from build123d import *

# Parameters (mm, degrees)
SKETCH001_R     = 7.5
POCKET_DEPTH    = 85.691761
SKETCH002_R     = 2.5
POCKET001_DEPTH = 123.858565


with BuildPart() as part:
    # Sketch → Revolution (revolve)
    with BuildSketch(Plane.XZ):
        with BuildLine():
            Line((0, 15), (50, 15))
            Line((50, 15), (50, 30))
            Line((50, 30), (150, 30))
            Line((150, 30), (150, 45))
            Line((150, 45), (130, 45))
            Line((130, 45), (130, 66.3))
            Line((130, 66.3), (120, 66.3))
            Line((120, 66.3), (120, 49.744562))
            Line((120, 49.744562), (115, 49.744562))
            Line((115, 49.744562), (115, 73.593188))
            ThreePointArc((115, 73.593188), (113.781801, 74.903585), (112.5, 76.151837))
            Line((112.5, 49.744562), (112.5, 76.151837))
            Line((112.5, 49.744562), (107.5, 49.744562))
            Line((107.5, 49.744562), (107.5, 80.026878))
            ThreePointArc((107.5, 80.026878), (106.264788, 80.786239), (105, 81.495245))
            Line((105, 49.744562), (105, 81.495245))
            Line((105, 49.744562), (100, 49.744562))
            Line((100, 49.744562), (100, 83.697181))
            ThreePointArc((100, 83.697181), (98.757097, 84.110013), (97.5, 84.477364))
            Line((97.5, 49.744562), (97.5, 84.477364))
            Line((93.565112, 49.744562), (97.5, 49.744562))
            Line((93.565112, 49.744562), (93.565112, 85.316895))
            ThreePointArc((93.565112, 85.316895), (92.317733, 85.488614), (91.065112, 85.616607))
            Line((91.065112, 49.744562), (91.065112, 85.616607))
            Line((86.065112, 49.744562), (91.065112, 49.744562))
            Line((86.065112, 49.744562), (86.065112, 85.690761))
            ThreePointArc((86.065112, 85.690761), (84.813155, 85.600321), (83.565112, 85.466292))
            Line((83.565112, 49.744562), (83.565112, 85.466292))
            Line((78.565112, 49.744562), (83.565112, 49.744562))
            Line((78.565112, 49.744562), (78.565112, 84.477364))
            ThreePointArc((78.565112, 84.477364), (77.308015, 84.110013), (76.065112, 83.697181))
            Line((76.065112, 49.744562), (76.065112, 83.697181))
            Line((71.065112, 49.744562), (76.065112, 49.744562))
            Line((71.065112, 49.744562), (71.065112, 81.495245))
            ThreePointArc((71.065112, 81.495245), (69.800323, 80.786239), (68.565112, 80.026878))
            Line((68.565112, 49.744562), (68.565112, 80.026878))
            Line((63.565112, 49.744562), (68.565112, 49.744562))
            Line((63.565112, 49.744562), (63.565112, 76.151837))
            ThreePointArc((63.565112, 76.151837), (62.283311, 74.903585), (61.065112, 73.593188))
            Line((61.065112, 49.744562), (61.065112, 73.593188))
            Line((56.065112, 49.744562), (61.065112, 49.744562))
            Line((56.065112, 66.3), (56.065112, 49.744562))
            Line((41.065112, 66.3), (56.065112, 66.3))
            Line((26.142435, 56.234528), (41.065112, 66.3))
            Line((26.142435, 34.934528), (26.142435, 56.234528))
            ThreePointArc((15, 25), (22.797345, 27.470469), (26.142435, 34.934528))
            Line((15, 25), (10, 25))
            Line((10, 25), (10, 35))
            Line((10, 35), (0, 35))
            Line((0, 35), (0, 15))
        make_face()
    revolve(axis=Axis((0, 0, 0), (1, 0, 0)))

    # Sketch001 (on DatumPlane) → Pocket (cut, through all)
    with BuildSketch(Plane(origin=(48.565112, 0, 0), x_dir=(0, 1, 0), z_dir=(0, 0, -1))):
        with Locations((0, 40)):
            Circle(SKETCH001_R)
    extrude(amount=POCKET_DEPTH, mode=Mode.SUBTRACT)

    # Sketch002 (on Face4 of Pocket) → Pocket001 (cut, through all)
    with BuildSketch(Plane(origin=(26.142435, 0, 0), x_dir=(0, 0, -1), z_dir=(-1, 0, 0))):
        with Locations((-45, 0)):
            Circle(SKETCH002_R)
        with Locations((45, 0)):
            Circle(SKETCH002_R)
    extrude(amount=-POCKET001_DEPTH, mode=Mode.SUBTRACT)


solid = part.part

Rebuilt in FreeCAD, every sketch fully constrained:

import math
import FreeCAD as App
import Part
import Sketcher
Q = App.Units.Quantity

doc = App.newDocument("Part")
body = doc.addObject("PartDesign::Body", "Body")

sketch1 = body.newObject("Sketcher::SketchObject", "Sketch")
sketch1.AttachmentSupport = (doc.getObject("XZ_Plane"), [""])
sketch1.MapMode = "FlatFace"
sketch1.addGeometry(Part.LineSegment(App.Vector(0, 15, 0), App.Vector(50, 15, 0)), False)
sketch1.addGeometry(Part.LineSegment(App.Vector(50, 15, 0), App.Vector(50, 30, 0)), False)
sketch1.addGeometry(Part.LineSegment(App.Vector(50, 30, 0), App.Vector(150, 30, 0)), False)
sketch1.addGeometry(Part.LineSegment(App.Vector(150, 30, 0), App.Vector(150, 45, 0)), False)
sketch1.addGeometry(Part.LineSegment(App.Vector(150, 45, 0), App.Vector(130, 45, 0)), False)
sketch1.addGeometry(Part.LineSegment(App.Vector(130, 45, 0), App.Vector(130, 66.3, 0)), False)
sketch1.addGeometry(Part.LineSegment(App.Vector(130, 66.3, 0), App.Vector(120, 66.3, 0)), False)
sketch1.addGeometry(Part.LineSegment(App.Vector(120, 66.3, 0), App.Vector(120, 49.7, 0)), False)
sketch1.addGeometry(Part.LineSegment(App.Vector(120, 49.7, 0), App.Vector(115, 49.7, 0)), False)
sketch1.addGeometry(Part.LineSegment(App.Vector(115, 49.7, 0), App.Vector(115, 73.6, 0)), False)
sketch1.addGeometry(Part.ArcOfCircle(Part.Circle(App.Vector(88, 49.7, 0), App.Vector(0, 0, 1), 36), math.radians(41.49), math.radians(47.18)), False)
sketch1.addGeometry(Part.LineSegment(App.Vector(112.5, 76.2, 0), App.Vector(112.5, 49.7, 0)), False)
sketch1.addGeometry(Part.LineSegment(App.Vector(112.5, 49.7, 0), App.Vector(107.5, 49.7, 0)), False)
sketch1.addGeometry(Part.LineSegment(App.Vector(107.5, 49.7, 0), App.Vector(107.5, 80, 0)), False)
sketch1.addGeometry(Part.ArcOfCircle(Part.Circle(App.Vector(88, 49.7, 0), App.Vector(0, 0, 1), 36), math.radians(57.26), math.radians(61.88)), False)
sketch1.addGeometry(Part.LineSegment(App.Vector(105, 81.5, 0), App.Vector(105, 49.7, 0)), False)
sketch1.addGeometry(Part.LineSegment(App.Vector(105, 49.7, 0), App.Vector(100, 49.7, 0)), False)
sketch1.addGeometry(Part.LineSegment(App.Vector(100, 49.7, 0), App.Vector(100, 83.7, 0)), False)
sketch1.addGeometry(Part.ArcOfCircle(Part.Circle(App.Vector(88, 49.7, 0), App.Vector(0, 0, 1), 36), math.radians(70.58), math.radians(74.75)), False)
sketch1.addGeometry(Part.LineSegment(App.Vector(97.5, 84.5, 0), App.Vector(97.5, 49.7, 0)), False)
sketch1.addGeometry(Part.LineSegment(App.Vector(97.5, 49.7, 0), App.Vector(93.6, 49.7, 0)), False)
sketch1.addGeometry(Part.LineSegment(App.Vector(93.6, 49.7, 0), App.Vector(93.6, 85.3, 0)), False)
sketch1.addGeometry(Part.ArcOfCircle(Part.Circle(App.Vector(88, 49.7, 0), App.Vector(0, 0, 1), 36), math.radians(81.16), math.radians(85.17)), False)
sketch1.addGeometry(Part.LineSegment(App.Vector(91.1, 85.6, 0), App.Vector(91.1, 49.7, 0)), False)
sketch1.addGeometry(Part.LineSegment(App.Vector(91.1, 49.7, 0), App.Vector(86.1, 49.7, 0)), False)
sketch1.addGeometry(Part.LineSegment(App.Vector(86.1, 49.7, 0), App.Vector(86.1, 85.7, 0)), False)
sketch1.addGeometry(Part.ArcOfCircle(Part.Circle(App.Vector(88, 49.7, 0), App.Vector(0, 0, 1), 36), math.radians(93.13), math.radians(97.13)), False)
sketch1.addGeometry(Part.LineSegment(App.Vector(83.6, 85.5, 0), App.Vector(83.6, 49.7, 0)), False)
sketch1.addGeometry(Part.LineSegment(App.Vector(83.6, 49.7, 0), App.Vector(78.6, 49.7, 0)), False)
sketch1.addGeometry(Part.LineSegment(App.Vector(78.6, 49.7, 0), App.Vector(78.6, 84.5, 0)), False)
sketch1.addGeometry(Part.ArcOfCircle(Part.Circle(App.Vector(88, 49.7, 0), App.Vector(0, 0, 1), 36), math.radians(105.25), math.radians(109.42)), False)
sketch1.addGeometry(Part.LineSegment(App.Vector(76.1, 83.7, 0), App.Vector(76.1, 49.7, 0)), False)
sketch1.addGeometry(Part.LineSegment(App.Vector(76.1, 49.7, 0), App.Vector(71.1, 49.7, 0)), False)
sketch1.addGeometry(Part.LineSegment(App.Vector(71.1, 49.7, 0), App.Vector(71.1, 81.5, 0)), False)
sketch1.addGeometry(Part.ArcOfCircle(Part.Circle(App.Vector(88, 49.7, 0), App.Vector(0, 0, 1), 36), math.radians(118.12), math.radians(122.74)), False)
sketch1.addGeometry(Part.LineSegment(App.Vector(68.6, 80, 0), App.Vector(68.6, 49.7, 0)), False)
sketch1.addGeometry(Part.LineSegment(App.Vector(68.6, 49.7, 0), App.Vector(63.6, 49.7, 0)), False)
sketch1.addGeometry(Part.LineSegment(App.Vector(63.6, 49.7, 0), App.Vector(63.6, 76.2, 0)), False)
sketch1.addGeometry(Part.ArcOfCircle(Part.Circle(App.Vector(88, 49.7, 0), App.Vector(0, 0, 1), 36), math.radians(132.82), math.radians(138.51)), False)
sketch1.addGeometry(Part.LineSegment(App.Vector(61.1, 73.6, 0), App.Vector(61.1, 49.7, 0)), False)
sketch1.addGeometry(Part.LineSegment(App.Vector(61.1, 49.7, 0), App.Vector(56.1, 49.7, 0)), False)
sketch1.addGeometry(Part.LineSegment(App.Vector(56.1, 49.7, 0), App.Vector(56.1, 66.3, 0)), False)
sketch1.addGeometry(Part.LineSegment(App.Vector(56.1, 66.3, 0), App.Vector(41.1, 66.3, 0)), False)
sketch1.addGeometry(Part.LineSegment(App.Vector(41.1, 66.3, 0), App.Vector(26.1, 56.2, 0)), False)
sketch1.addGeometry(Part.LineSegment(App.Vector(26.1, 56.2, 0), App.Vector(26.1, 34.9, 0)), False)
sketch1.addGeometry(Part.ArcOfCircle(Part.Circle(App.Vector(16.1, 34.9, 0), App.Vector(0, 0, 1), 10), math.radians(-97), math.radians(0)), False)
sketch1.addGeometry(Part.LineSegment(App.Vector(15, 25, 0), App.Vector(10, 25, 0)), False)
sketch1.addGeometry(Part.LineSegment(App.Vector(10, 25, 0), App.Vector(10, 35, 0)), False)
sketch1.addGeometry(Part.LineSegment(App.Vector(10, 35, 0), App.Vector(0, 35, 0)), False)
sketch1.addGeometry(Part.LineSegment(App.Vector(0, 35, 0), App.Vector(0, 15, 0)), False)
sketch1.addConstraint(Sketcher.Constraint("Coincident", 0, 2, 1, 1))
sketch1.addConstraint(Sketcher.Constraint("Coincident", 1, 2, 2, 1))
sketch1.addConstraint(Sketcher.Constraint("Coincident", 2, 2, 3, 1))
sketch1.addConstraint(Sketcher.Constraint("Coincident", 3, 2, 4, 1))
sketch1.addConstraint(Sketcher.Constraint("Coincident", 4, 2, 5, 1))
sketch1.addConstraint(Sketcher.Constraint("Coincident", 5, 2, 6, 1))
sketch1.addConstraint(Sketcher.Constraint("Coincident", 6, 2, 7, 1))
sketch1.addConstraint(Sketcher.Constraint("Coincident", 7, 2, 8, 1))
sketch1.addConstraint(Sketcher.Constraint("Coincident", 8, 2, 9, 1))
sketch1.addConstraint(Sketcher.Constraint("Coincident", 9, 2, 10, 1))
sketch1.addConstraint(Sketcher.Constraint("Coincident", 10, 2, 11, 1))
sketch1.addConstraint(Sketcher.Constraint("Coincident", 11, 2, 12, 1))
sketch1.addConstraint(Sketcher.Constraint("Coincident", 12, 2, 13, 1))
sketch1.addConstraint(Sketcher.Constraint("Coincident", 13, 2, 14, 1))
sketch1.addConstraint(Sketcher.Constraint("Coincident", 14, 2, 15, 1))
sketch1.addConstraint(Sketcher.Constraint("Coincident", 15, 2, 16, 1))
sketch1.addConstraint(Sketcher.Constraint("Coincident", 16, 2, 17, 1))
sketch1.addConstraint(Sketcher.Constraint("Coincident", 17, 2, 18, 1))
sketch1.addConstraint(Sketcher.Constraint("Coincident", 18, 2, 19, 1))
sketch1.addConstraint(Sketcher.Constraint("Coincident", 19, 2, 20, 1))
sketch1.addConstraint(Sketcher.Constraint("Coincident", 20, 2, 21, 1))
sketch1.addConstraint(Sketcher.Constraint("Coincident", 21, 2, 22, 1))
sketch1.addConstraint(Sketcher.Constraint("Coincident", 22, 2, 23, 1))
sketch1.addConstraint(Sketcher.Constraint("Coincident", 23, 2, 24, 1))
sketch1.addConstraint(Sketcher.Constraint("Coincident", 24, 2, 25, 1))
sketch1.addConstraint(Sketcher.Constraint("Coincident", 25, 2, 26, 1))
sketch1.addConstraint(Sketcher.Constraint("Coincident", 26, 2, 27, 1))
sketch1.addConstraint(Sketcher.Constraint("Coincident", 27, 2, 28, 1))
sketch1.addConstraint(Sketcher.Constraint("Coincident", 28, 2, 29, 1))
sketch1.addConstraint(Sketcher.Constraint("Coincident", 29, 2, 30, 1))
sketch1.addConstraint(Sketcher.Constraint("Coincident", 30, 2, 31, 1))
sketch1.addConstraint(Sketcher.Constraint("Coincident", 31, 2, 32, 1))
sketch1.addConstraint(Sketcher.Constraint("Coincident", 32, 2, 33, 1))
sketch1.addConstraint(Sketcher.Constraint("Coincident", 33, 2, 34, 1))
sketch1.addConstraint(Sketcher.Constraint("Coincident", 34, 2, 35, 1))
sketch1.addConstraint(Sketcher.Constraint("Coincident", 35, 2, 36, 1))
sketch1.addConstraint(Sketcher.Constraint("Coincident", 36, 2, 37, 1))
sketch1.addConstraint(Sketcher.Constraint("Coincident", 37, 2, 38, 1))
sketch1.addConstraint(Sketcher.Constraint("Coincident", 38, 2, 39, 1))
sketch1.addConstraint(Sketcher.Constraint("Coincident", 39, 2, 40, 1))
sketch1.addConstraint(Sketcher.Constraint("Coincident", 40, 2, 41, 1))
sketch1.addConstraint(Sketcher.Constraint("Coincident", 41, 2, 42, 1))
sketch1.addConstraint(Sketcher.Constraint("Coincident", 42, 2, 43, 1))
sketch1.addConstraint(Sketcher.Constraint("Coincident", 43, 2, 44, 1))
sketch1.addConstraint(Sketcher.Constraint("Tangent", 44, 2, 45, 2))
sketch1.addConstraint(Sketcher.Constraint("Coincident", 45, 1, 46, 1))
sketch1.addConstraint(Sketcher.Constraint("Coincident", 46, 2, 47, 1))
sketch1.addConstraint(Sketcher.Constraint("Coincident", 47, 2, 48, 1))
sketch1.addConstraint(Sketcher.Constraint("Coincident", 48, 2, 49, 1))
sketch1.addConstraint(Sketcher.Constraint("Coincident", 49, 2, 0, 1))
sketch1.addConstraint(Sketcher.Constraint("Horizontal", 0))
sketch1.addConstraint(Sketcher.Constraint("Vertical", 1))
sketch1.addConstraint(Sketcher.Constraint("Horizontal", 2))
sketch1.addConstraint(Sketcher.Constraint("Vertical", 3))
sketch1.addConstraint(Sketcher.Constraint("Horizontal", 4))
sketch1.addConstraint(Sketcher.Constraint("Vertical", 5))
sketch1.addConstraint(Sketcher.Constraint("Horizontal", 6))
sketch1.addConstraint(Sketcher.Constraint("Vertical", 7))
sketch1.addConstraint(Sketcher.Constraint("Horizontal", 8))
sketch1.addConstraint(Sketcher.Constraint("Vertical", 9))
sketch1.addConstraint(Sketcher.Constraint("Vertical", 11))
sketch1.addConstraint(Sketcher.Constraint("Horizontal", 12))
sketch1.addConstraint(Sketcher.Constraint("Vertical", 13))
sketch1.addConstraint(Sketcher.Constraint("Vertical", 15))
sketch1.addConstraint(Sketcher.Constraint("Horizontal", 16))
sketch1.addConstraint(Sketcher.Constraint("Vertical", 17))
sketch1.addConstraint(Sketcher.Constraint("Vertical", 19))
sketch1.addConstraint(Sketcher.Constraint("Horizontal", 20))
sketch1.addConstraint(Sketcher.Constraint("Vertical", 21))
sketch1.addConstraint(Sketcher.Constraint("Vertical", 23))
sketch1.addConstraint(Sketcher.Constraint("Horizontal", 24))
sketch1.addConstraint(Sketcher.Constraint("Vertical", 25))
sketch1.addConstraint(Sketcher.Constraint("Vertical", 27))
sketch1.addConstraint(Sketcher.Constraint("Horizontal", 28))
sketch1.addConstraint(Sketcher.Constraint("Vertical", 29))
sketch1.addConstraint(Sketcher.Constraint("Vertical", 31))
sketch1.addConstraint(Sketcher.Constraint("Horizontal", 32))
sketch1.addConstraint(Sketcher.Constraint("Vertical", 33))
sketch1.addConstraint(Sketcher.Constraint("Vertical", 35))
sketch1.addConstraint(Sketcher.Constraint("Horizontal", 36))
sketch1.addConstraint(Sketcher.Constraint("Vertical", 37))
sketch1.addConstraint(Sketcher.Constraint("Vertical", 39))
sketch1.addConstraint(Sketcher.Constraint("Horizontal", 40))
sketch1.addConstraint(Sketcher.Constraint("Vertical", 41))
sketch1.addConstraint(Sketcher.Constraint("Horizontal", 42))
sketch1.addConstraint(Sketcher.Constraint("Vertical", 44))
sketch1.addConstraint(Sketcher.Constraint("Horizontal", 46))
sketch1.addConstraint(Sketcher.Constraint("Vertical", 47))
sketch1.addConstraint(Sketcher.Constraint("Horizontal", 48))
sketch1.addConstraint(Sketcher.Constraint("Vertical", 49))
sketch1.addConstraint(Sketcher.Constraint("Equal", 18, 30))
sketch1.addConstraint(Sketcher.Constraint("Equal", 10, 38))
sketch1.addConstraint(Sketcher.Constraint("PointOnObject", 48, 2, -2))
sketch1.addConstraint(Sketcher.Constraint("Horizontal", 18, 3, 30, 3))
sketch1.addConstraint(Sketcher.Constraint("Horizontal", 10, 3, 38, 3))
sketch1.addConstraint(Sketcher.Constraint("Horizontal", 8, 2, 11, 2))
sketch1.addConstraint(Sketcher.Constraint("Horizontal", 12, 2, 15, 2))
sketch1.addConstraint(Sketcher.Constraint("Horizontal", 16, 2, 19, 2))
sketch1.addConstraint(Sketcher.Constraint("Horizontal", 20, 2, 23, 2))
sketch1.addConstraint(Sketcher.Constraint("Horizontal", 24, 2, 27, 2))
sketch1.addConstraint(Sketcher.Constraint("Horizontal", 18, 2, 29, 2))
sketch1.addConstraint(Sketcher.Constraint("Horizontal", 17, 2, 30, 2))
sketch1.addConstraint(Sketcher.Constraint("Horizontal", 28, 2, 31, 2))
sketch1.addConstraint(Sketcher.Constraint("Horizontal", 14, 2, 33, 2))
sketch1.addConstraint(Sketcher.Constraint("Horizontal", 13, 2, 34, 2))
sketch1.addConstraint(Sketcher.Constraint("Horizontal", 32, 2, 35, 2))
sketch1.addConstraint(Sketcher.Constraint("Horizontal", 10, 2, 37, 2))
sketch1.addConstraint(Sketcher.Constraint("Horizontal", 9, 2, 38, 2))
sketch1.addConstraint(Sketcher.Constraint("Horizontal", 36, 2, 39, 2))
sketch1.addConstraint(Sketcher.Constraint("Horizontal", 6, 2, 41, 2))
sketch1.addConstraint(Sketcher.Constraint("Equal", 8, 12))
sketch1.addConstraint(Sketcher.Constraint("Equal", 12, 16))
sketch1.addConstraint(Sketcher.Constraint("Equal", 16, 24))
sketch1.addConstraint(Sketcher.Constraint("Equal", 24, 28))
sketch1.addConstraint(Sketcher.Constraint("Equal", 28, 32))
sketch1.addConstraint(Sketcher.Constraint("Equal", 32, 36))
sketch1.addConstraint(Sketcher.Constraint("Equal", 36, 40))
sketch1.addConstraint(Sketcher.Constraint("Equal", 40, 46))
sketch1.addConstraint(Sketcher.Constraint("Equal", 6, 48))
sketch1.addConstraint(Sketcher.Constraint("Equal", 42, 1))
sketch1.addConstraint(Sketcher.Constraint("Equal", 1, 3))
sketch1.addConstraint(Sketcher.Constraint("Equal", 5, 44))
sketch1.addConstraint(Sketcher.Constraint("Equal", 48, 47))
sketch1.addConstraint(Sketcher.Constraint("Equal", 4, 49))
sketch1.addConstraint(Sketcher.Constraint("Radius", 45, Q("10 mm")))
sketch1.addConstraint(Sketcher.Constraint("DistanceX", 0, 1, 0, 2, Q("50 mm")))
sketch1.addConstraint(Sketcher.Constraint("DistanceX", 2, 1, 2, 2, Q("100 mm")))
sketch1.addConstraint(Sketcher.Constraint("DistanceX", 4, 2, 4, 1, Q("20 mm")))
sketch1.addConstraint(Sketcher.Constraint("DistanceX", 6, 2, 6, 1, Q("10 mm")))
sketch1.addConstraint(Sketcher.Constraint("DistanceX", 8, 2, 8, 1, Q("5 mm")))
sketch1.addConstraint(Sketcher.Constraint("DistanceX", 42, 2, 42, 1, Q("15 mm")))
sketch1.addConstraint(Sketcher.Constraint("Angle", 43, Q("-146.000002 deg")))
sketch1.addConstraint(Sketcher.Constraint("Distance", 43, Q("18 mm")))
sketch1.addConstraint(Sketcher.Constraint("DistanceY", 5, 1, 5, 2, Q("21.3 mm")))
sketch1.addConstraint(Sketcher.Constraint("DistanceY", -1, 1, 0, 2, Q("15 mm")))
sketch1.addConstraint(Sketcher.Constraint("DistanceX", -1, 1, 14, 2, Q("105 mm")))
sketch1.addConstraint(Sketcher.Constraint("DistanceX", 18, 2, 13, 2, Q("10 mm")))
sketch1.addConstraint(Sketcher.Constraint("DistanceX", 26, 2, 21, 2, Q("10 mm")))
sketch1.addConstraint(Sketcher.Constraint("DistanceX", 30, 2, 25, 2, Q("10 mm")))
sketch1.addConstraint(Sketcher.Constraint("DistanceX", 34, 2, 29, 2, Q("10 mm")))
sketch1.addConstraint(Sketcher.Constraint("DistanceX", -1, 1, 10, 2, Q("112.5 mm")))
sketch1.addConstraint(Sketcher.Constraint("Radius", 14, Q("36.000648 mm")))
sketch1.addConstraint(Sketcher.Constraint("Radius", 22, Q("36.00078 mm")))
sketch1.addConstraint(Sketcher.Constraint("DistanceY", 19, 2, 19, 1, Q("34.732802 mm")))
sketch1.addConstraint(Sketcher.Constraint("DistanceY", 25, 1, 25, 2, Q("35.946199 mm")))
sketch1.addConstraint(Sketcher.Constraint("DistanceY", -1, 1, 14, 3, Q("49.744002 mm")))
sketch1.addConstraint(Sketcher.Constraint("Radius", 10, Q("35.999292 mm")))
sketch1.addConstraint(Sketcher.Constraint("Radius", 18, Q("36.000833 mm")))
sketch1.addConstraint(Sketcher.Constraint("Radius", 26, Q("36.001325 mm")))
sketch1.addConstraint(Sketcher.Constraint("Radius", 34, Q("36.000024 mm")))
sketch1.addConstraint(Sketcher.Constraint("DistanceY", 17, 1, 17, 2, Q("33.952619 mm")))
sketch1.addConstraint(Sketcher.Constraint("DistanceY", 27, 2, 27, 1, Q("35.72173 mm")))
sketch1.addConstraint(Sketcher.Constraint("DistanceY", 7, 2, 7, 1, Q("16.555438 mm")))
sketch1.addConstraint(Sketcher.Constraint("DistanceY", 9, 1, 9, 2, Q("23.848626 mm")))
sketch1.addConstraint(Sketcher.Constraint("DistanceY", 11, 2, 11, 1, Q("26.407275 mm")))
sketch1.addConstraint(Sketcher.Constraint("DistanceY", 13, 1, 13, 2, Q("30.282316 mm")))
sketch1.addConstraint(Sketcher.Constraint("DistanceY", 21, 1, 21, 2, Q("35.572333 mm")))
sketch1.addConstraint(Sketcher.Constraint("DistanceY", 23, 2, 23, 1, Q("35.872045 mm")))
revolution = body.newObject("PartDesign::Revolution", "Revolution")
revolution.Profile = sketch1
revolution.ReferenceAxis = (sketch1, ["H_Axis"])
revolution.Angle = 360

sketch2 = body.newObject("Sketcher::SketchObject", "Sketch001")
sketch2.AttachmentSupport = (doc.getObject("XY_Plane"), [""])
sketch2.MapMode = "FlatFace"
sketch2.addGeometry(Part.Circle(App.Vector(89, 0, 0), App.Vector(0, 0, 1), 8), False)
sketch2.addConstraint(Sketcher.Constraint("PointOnObject", 0, 3, -1))
sketch2.addConstraint(Sketcher.Constraint("Diameter", 0, Q("15 mm")))
sketch2.addConstraint(Sketcher.Constraint("DistanceX", -1, 1, 0, 3, Q("88.565112 mm")))
pocket1 = body.newObject("PartDesign::Pocket", "Pocket")
pocket1.Profile = sketch2
pocket1.Type = "ThroughAll"

sketch3 = body.newObject("Sketcher::SketchObject", "Sketch002")
sketch3.AttachmentSupport = (doc.getObject("YZ_Plane"), [""])
sketch3.MapMode = "FlatFace"
sketch3.AttachmentOffset = App.Placement(App.Vector(0, 0, 26.142435), App.Rotation())
sketch3.addGeometry(Part.Circle(App.Vector(0, 45, 0), App.Vector(0, 0, 1), 2.5), False)
sketch3.addGeometry(Part.Circle(App.Vector(0, -45, 0), App.Vector(0, 0, 1), 2.5), False)
sketch3.addConstraint(Sketcher.Constraint("Equal", 0, 1))
sketch3.addConstraint(Sketcher.Constraint("Symmetric", 0, 3, 1, 3, -1, 1))
sketch3.addConstraint(Sketcher.Constraint("PointOnObject", 0, 3, -2))
sketch3.addConstraint(Sketcher.Constraint("Diameter", 0, Q("5 mm")))
sketch3.addConstraint(Sketcher.Constraint("DistanceY", -1, 1, 0, 3, Q("45 mm")))
pocket2 = body.newObject("PartDesign::Pocket", "Pocket001")
pocket2.Profile = sketch3
pocket2.Type = "ThroughAll"
pocket2.Reversed = True

doc.recompute()
